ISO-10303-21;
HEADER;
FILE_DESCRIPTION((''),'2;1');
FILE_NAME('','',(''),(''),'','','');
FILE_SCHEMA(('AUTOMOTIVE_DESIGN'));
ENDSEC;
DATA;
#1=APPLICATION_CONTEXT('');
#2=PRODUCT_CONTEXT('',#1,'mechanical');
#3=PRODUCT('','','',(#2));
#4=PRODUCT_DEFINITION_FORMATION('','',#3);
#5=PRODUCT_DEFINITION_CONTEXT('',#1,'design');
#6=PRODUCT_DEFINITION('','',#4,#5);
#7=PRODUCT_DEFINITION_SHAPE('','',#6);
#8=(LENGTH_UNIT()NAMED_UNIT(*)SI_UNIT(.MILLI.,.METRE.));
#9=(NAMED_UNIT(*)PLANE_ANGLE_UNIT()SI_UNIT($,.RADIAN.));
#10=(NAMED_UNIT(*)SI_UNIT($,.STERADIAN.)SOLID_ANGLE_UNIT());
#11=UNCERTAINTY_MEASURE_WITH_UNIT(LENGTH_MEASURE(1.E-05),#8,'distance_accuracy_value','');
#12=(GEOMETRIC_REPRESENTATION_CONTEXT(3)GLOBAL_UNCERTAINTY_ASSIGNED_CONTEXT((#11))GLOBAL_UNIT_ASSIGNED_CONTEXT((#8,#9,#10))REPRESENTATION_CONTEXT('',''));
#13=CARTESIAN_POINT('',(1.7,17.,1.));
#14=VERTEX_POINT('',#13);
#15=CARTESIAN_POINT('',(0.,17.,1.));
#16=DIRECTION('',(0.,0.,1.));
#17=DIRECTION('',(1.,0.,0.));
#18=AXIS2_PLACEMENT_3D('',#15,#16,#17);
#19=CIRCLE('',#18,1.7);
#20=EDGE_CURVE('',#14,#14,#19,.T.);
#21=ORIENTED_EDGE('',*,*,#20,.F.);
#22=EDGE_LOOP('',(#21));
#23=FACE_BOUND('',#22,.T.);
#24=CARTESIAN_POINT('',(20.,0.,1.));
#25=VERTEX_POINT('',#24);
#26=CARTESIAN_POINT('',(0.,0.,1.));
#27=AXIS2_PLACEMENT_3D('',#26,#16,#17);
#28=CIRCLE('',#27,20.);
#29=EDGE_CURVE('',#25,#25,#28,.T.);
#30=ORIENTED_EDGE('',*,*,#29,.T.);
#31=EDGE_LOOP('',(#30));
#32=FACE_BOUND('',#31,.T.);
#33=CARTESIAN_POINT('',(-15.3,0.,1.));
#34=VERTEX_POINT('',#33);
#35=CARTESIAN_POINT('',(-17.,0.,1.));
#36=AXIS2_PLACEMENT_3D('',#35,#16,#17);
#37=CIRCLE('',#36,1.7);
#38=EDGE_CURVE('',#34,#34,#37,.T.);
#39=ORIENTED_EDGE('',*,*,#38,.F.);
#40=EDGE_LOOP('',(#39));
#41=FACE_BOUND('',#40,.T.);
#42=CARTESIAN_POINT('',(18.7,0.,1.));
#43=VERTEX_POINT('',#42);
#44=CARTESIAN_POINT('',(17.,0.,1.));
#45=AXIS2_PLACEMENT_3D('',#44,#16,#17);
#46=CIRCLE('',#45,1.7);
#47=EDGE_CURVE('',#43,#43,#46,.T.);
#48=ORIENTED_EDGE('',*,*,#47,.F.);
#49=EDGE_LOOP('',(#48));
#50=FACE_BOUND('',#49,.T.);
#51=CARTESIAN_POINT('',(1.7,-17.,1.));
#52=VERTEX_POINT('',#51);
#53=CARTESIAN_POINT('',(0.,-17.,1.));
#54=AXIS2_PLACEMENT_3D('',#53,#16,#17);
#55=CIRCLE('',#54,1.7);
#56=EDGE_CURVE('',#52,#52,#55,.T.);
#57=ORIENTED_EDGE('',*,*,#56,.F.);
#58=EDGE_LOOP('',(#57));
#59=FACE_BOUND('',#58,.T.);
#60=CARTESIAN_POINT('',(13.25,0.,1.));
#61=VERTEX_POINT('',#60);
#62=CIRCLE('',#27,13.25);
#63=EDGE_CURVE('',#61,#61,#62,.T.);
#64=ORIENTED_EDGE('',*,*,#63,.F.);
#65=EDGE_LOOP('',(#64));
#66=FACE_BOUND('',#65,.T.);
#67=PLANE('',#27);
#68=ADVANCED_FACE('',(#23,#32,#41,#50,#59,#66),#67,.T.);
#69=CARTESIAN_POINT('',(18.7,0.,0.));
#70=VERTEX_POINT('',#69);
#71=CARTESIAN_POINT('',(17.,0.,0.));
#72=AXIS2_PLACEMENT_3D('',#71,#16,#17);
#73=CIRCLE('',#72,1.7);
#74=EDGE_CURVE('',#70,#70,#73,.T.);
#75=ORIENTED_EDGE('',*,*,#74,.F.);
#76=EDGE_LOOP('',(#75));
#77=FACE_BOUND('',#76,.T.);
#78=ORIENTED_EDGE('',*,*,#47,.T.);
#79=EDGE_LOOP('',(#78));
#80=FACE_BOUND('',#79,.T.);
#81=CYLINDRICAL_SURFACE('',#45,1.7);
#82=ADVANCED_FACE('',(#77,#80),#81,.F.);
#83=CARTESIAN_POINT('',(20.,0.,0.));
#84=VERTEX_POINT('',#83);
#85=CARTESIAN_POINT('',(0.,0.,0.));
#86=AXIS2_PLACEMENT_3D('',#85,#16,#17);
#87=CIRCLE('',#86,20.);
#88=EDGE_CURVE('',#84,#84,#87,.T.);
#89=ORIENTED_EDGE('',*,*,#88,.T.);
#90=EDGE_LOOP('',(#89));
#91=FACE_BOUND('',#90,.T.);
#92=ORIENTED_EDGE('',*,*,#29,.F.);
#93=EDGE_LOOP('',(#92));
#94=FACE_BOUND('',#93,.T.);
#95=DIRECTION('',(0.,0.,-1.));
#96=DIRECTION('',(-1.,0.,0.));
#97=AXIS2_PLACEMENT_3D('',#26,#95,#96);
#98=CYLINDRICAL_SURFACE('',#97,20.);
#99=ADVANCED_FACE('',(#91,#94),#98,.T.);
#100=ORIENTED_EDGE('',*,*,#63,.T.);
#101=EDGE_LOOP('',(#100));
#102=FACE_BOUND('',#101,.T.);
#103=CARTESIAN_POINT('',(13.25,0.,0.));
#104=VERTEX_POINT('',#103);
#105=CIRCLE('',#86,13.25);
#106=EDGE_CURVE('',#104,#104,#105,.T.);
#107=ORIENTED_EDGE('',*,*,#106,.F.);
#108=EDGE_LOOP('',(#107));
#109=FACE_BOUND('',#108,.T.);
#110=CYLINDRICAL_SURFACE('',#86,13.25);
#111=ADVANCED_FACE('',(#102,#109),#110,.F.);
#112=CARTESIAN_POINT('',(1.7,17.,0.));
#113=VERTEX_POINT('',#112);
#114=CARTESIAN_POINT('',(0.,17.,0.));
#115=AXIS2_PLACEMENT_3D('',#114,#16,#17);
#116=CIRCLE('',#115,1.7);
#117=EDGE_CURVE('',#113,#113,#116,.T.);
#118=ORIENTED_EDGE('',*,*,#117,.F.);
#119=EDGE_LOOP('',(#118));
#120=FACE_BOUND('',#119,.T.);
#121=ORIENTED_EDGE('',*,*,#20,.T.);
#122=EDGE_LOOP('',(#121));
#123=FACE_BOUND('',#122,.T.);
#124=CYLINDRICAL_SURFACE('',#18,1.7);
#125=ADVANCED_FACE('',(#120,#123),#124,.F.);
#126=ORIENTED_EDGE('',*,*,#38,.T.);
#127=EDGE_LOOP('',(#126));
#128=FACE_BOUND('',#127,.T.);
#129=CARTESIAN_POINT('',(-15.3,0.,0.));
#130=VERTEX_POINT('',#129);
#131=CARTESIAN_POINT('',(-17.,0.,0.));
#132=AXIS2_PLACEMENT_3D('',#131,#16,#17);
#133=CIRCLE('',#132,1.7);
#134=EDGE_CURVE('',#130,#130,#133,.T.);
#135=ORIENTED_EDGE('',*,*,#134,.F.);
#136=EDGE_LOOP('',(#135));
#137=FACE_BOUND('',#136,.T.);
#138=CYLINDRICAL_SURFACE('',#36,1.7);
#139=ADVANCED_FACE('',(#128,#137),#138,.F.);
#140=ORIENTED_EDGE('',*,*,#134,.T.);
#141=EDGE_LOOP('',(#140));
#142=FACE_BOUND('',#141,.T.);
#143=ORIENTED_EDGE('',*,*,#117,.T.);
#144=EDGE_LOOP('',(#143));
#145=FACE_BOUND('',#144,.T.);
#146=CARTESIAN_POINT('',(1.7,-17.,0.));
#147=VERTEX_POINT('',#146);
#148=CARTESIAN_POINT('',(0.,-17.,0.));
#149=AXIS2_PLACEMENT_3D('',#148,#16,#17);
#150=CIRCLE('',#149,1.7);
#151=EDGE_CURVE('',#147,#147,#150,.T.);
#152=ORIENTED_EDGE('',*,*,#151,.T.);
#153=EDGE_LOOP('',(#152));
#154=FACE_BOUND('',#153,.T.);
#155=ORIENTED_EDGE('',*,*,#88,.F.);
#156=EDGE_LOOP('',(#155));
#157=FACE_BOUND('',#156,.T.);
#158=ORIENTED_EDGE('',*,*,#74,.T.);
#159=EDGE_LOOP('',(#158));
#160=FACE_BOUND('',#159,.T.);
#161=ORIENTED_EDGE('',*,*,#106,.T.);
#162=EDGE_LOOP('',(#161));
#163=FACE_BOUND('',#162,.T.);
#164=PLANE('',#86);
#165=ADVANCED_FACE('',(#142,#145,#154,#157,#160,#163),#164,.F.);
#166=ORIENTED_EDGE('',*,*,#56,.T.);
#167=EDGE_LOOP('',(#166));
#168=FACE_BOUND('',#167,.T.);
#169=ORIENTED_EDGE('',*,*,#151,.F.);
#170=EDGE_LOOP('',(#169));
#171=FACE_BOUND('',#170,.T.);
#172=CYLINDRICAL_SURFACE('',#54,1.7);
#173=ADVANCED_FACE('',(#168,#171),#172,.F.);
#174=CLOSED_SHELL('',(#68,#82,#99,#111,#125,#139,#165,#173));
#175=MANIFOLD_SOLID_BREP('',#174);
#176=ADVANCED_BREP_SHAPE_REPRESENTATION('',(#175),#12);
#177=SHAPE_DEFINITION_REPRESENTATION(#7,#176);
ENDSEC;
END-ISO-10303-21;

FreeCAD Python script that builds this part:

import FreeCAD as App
import Part
import Sketcher

doc = App.newDocument("Part")
params = doc.addObject("Spreadsheet::Sheet", "Params")
for row, (alias, value) in enumerate([
    ("sketch1_diameter", "40 mm"),
    ("pad1_length", "1 mm"),
    ("sketch2_diameter", "26.5 mm"),
    ("pocket1_length", "1 mm"),
    ("sketch3_diameter", "3.4 mm"),
    ("hole_diameter", "3.4 mm"),
], start=1):
    params.set(f"A{row}", alias)
    params.set(f"B{row}", "=" + value)
    params.setAlias(f"B{row}", alias)

body = doc.addObject("PartDesign::Body", "Body")

sketch1 = body.newObject("Sketcher::SketchObject", "Sketch")
sketch1.AttachmentSupport = (doc.getObject("XY_Plane"), [""])
sketch1.MapMode = "FlatFace"
sketch1.addGeometry(Part.Circle(App.Vector(0, 0, 0), App.Vector(0, 0, 1), 20), False)
sketch1.addConstraint(Sketcher.Constraint("Coincident", 0, 3, -1, 1))
sketch1.addConstraint(Sketcher.Constraint("Diameter", 0, 40.0))
sketch1.setExpression("Constraints[1]", "Params.sketch1_diameter")
pad1 = body.newObject("PartDesign::Pad", "Pad")
pad1.Profile = sketch1
pad1.setExpression("Length", "Params.pad1_length")

sketch2 = body.newObject("Sketcher::SketchObject", "Sketch001")
sketch2.AttachmentSupport = (doc.getObject("XY_Plane"), [""])
sketch2.MapMode = "FlatFace"
sketch2.AttachmentOffset = App.Placement(App.Vector(0, 0, 1), App.Rotation())
sketch2.addGeometry(Part.Circle(App.Vector(0, 0, 0), App.Vector(0, 0, 1), 13), False)
sketch2.addConstraint(Sketcher.Constraint("Coincident", 0, 3, -1, 1))
sketch2.addConstraint(Sketcher.Constraint("Diameter", 0, 26.5))
sketch2.setExpression("Constraints[1]", "Params.sketch2_diameter")
pocket1 = body.newObject("PartDesign::Pocket", "Pocket")
pocket1.Profile = sketch2
pocket1.setExpression("Length", "Params.pocket1_length")

sketch3 = body.newObject("Sketcher::SketchObject", "Sketch002")
sketch3.AttachmentSupport = (doc.getObject("XY_Plane"), [""])
sketch3.MapMode = "FlatFace"
sketch3.AttachmentOffset = App.Placement(App.Vector(0, 0, 1), App.Rotation())
sketch3.addGeometry(Part.Circle(App.Vector(0, 17, 0), App.Vector(0, 0, 1), 1.7), False)
sketch3.addGeometry(Part.Circle(App.Vector(17, 0, 0), App.Vector(0, 0, 1), 1.7), False)
sketch3.addGeometry(Part.Circle(App.Vector(0, -17, 0), App.Vector(0, 0, 1), 1.7), False)
sketch3.addGeometry(Part.Circle(App.Vector(-17, 0, 0), App.Vector(0, 0, 1), 1.7), False)
sketch3.addConstraint(Sketcher.Constraint("Equal", 0, 1))
sketch3.addConstraint(Sketcher.Constraint("Equal", 1, 2))
sketch3.addConstraint(Sketcher.Constraint("Equal", 2, 3))
sketch3.addConstraint(Sketcher.Constraint("Symmetric", 0, 3, 2, 3, -1, 1))
sketch3.addConstraint(Sketcher.Constraint("Symmetric", 1, 3, 3, 3, -1, 1))
sketch3.addConstraint(Sketcher.Constraint("PointOnObject", 0, 3, -2))
sketch3.addConstraint(Sketcher.Constraint("PointOnObject", 1, 3, -1))
sketch3.addConstraint(Sketcher.Constraint("Diameter", 0, 3.4))
sketch3.addConstraint(Sketcher.Constraint("DistanceY", -1, 1, 0, 3, 17.0))
sketch3.addConstraint(Sketcher.Constraint("DistanceX", -1, 1, 1, 3, 17.0))
sketch3.setExpression("Constraints[7]", "Params.sketch3_diameter")
doc.recompute()
hole = body.newObject("PartDesign::Hole", "Hole")
hole.Profile = sketch3
hole.ThreadType = "None"
hole.setExpression("Diameter", "Params.hole_diameter")
hole.DepthType = "ThroughAll"

doc.recompute()
